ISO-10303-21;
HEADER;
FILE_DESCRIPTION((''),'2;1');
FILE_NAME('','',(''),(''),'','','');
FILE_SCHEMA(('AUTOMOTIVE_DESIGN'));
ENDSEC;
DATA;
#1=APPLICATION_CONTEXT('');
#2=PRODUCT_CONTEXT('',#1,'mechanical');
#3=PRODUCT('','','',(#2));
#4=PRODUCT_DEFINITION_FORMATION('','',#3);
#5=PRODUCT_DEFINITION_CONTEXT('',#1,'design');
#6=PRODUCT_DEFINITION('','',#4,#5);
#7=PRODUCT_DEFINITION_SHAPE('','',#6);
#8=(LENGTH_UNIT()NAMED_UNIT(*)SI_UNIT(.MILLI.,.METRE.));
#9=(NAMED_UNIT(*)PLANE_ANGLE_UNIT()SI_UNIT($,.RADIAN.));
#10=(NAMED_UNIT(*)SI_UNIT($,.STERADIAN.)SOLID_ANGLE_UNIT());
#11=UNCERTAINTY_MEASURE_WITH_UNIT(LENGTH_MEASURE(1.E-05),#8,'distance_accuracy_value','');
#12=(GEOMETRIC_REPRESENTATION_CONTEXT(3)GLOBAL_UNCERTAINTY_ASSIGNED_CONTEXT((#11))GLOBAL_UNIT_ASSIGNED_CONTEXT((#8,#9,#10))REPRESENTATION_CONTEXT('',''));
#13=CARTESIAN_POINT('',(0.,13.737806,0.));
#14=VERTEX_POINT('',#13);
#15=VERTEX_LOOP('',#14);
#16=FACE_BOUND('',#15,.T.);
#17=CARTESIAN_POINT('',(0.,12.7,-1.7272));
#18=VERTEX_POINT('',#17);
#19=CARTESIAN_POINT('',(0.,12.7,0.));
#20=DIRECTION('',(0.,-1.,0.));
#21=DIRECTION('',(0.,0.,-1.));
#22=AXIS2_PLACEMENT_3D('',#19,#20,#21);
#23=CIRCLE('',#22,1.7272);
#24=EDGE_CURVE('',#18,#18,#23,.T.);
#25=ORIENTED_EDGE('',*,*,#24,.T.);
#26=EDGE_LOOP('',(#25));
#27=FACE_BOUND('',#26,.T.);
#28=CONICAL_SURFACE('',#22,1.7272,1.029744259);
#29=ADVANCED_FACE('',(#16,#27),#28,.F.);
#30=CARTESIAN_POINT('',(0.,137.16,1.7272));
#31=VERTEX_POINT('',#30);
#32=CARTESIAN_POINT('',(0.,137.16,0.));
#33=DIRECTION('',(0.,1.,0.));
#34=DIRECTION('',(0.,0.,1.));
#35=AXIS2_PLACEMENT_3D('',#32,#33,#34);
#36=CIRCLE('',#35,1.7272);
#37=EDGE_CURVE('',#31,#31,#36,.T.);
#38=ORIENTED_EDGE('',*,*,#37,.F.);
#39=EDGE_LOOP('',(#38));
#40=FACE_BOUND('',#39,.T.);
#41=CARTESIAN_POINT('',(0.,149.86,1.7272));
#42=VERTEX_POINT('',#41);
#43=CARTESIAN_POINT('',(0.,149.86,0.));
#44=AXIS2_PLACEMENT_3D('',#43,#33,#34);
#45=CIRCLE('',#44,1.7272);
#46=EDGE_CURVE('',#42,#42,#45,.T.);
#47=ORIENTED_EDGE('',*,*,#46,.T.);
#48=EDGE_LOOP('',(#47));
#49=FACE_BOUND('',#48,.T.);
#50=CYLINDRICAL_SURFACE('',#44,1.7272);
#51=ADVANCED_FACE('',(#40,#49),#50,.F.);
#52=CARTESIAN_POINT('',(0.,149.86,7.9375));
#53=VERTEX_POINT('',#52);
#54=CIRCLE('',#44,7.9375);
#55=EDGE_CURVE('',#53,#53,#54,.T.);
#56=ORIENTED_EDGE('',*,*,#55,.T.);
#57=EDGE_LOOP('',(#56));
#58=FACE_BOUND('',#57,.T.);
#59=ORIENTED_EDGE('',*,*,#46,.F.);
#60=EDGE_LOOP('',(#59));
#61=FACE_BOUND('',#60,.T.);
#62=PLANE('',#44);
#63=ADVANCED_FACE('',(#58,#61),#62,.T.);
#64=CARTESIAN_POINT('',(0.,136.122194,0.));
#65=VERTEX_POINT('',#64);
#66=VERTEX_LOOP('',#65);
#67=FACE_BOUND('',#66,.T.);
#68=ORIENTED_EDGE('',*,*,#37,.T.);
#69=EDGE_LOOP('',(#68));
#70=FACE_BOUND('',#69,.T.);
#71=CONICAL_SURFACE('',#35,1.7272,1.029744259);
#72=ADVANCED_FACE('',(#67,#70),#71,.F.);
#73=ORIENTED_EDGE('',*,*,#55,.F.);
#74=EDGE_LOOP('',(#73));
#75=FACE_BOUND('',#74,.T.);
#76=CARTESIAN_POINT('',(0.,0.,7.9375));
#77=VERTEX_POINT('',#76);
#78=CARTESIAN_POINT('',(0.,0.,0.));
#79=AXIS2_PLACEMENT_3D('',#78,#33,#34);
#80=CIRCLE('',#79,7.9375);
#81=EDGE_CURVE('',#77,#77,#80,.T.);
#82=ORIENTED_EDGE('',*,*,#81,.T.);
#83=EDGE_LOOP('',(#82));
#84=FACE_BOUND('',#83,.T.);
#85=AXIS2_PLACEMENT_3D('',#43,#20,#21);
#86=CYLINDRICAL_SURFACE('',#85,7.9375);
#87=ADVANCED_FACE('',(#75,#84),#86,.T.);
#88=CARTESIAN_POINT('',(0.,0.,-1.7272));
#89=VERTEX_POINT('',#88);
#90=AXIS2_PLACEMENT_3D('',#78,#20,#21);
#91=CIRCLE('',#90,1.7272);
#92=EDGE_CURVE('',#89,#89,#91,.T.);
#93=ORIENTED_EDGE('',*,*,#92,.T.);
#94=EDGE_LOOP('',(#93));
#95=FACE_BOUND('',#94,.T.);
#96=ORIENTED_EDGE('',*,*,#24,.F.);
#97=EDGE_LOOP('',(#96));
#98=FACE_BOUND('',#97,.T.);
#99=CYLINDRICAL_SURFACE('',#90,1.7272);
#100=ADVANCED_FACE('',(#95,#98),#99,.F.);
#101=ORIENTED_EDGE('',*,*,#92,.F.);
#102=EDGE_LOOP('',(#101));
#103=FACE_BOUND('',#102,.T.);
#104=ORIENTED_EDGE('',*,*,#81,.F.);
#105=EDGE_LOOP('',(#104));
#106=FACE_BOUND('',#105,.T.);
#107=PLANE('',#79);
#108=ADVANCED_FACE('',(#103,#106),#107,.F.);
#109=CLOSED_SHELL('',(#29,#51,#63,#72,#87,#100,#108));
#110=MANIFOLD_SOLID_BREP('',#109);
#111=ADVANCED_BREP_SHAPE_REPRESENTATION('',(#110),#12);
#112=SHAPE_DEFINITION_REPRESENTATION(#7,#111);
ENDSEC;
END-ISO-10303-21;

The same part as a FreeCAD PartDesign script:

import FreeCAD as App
import Part
import Sketcher
Q = App.Units.Quantity

doc = App.newDocument("Part")
params = doc.addObject("Spreadsheet::Sheet", "Params")
for row, (alias, value) in enumerate([
    ("sketch1_diameter", "0.625 in"),
    ("pad1_length", "5.9 in"),
    ("sketch2_diameter", "0.136 in"),
    ("hole_diameter", "0.136 in"),
    ("hole_depth", "0.5 in"),
    ("sketch3_diameter", "0.136 in"),
    ("hole2_diameter", "0.136 in"),
    ("hole2_depth", "0.5 in"),
], start=1):
    params.set(f"A{row}", alias)
    params.set(f"B{row}", "=" + value)
    params.setAlias(f"B{row}", alias)

body = doc.addObject("PartDesign::Body", "Body")

sketch1 = body.newObject("Sketcher::SketchObject", "Sketch")
sketch1.AttachmentSupport = (doc.getObject("XZ_Plane"), [""])
sketch1.MapMode = "FlatFace"
sketch1.addGeometry(Part.Circle(App.Vector(0, 0, 0), App.Vector(0, 0, 1), 8), False)
sketch1.addConstraint(Sketcher.Constraint("Coincident", 0, 3, -1, 1))
sketch1.addConstraint(Sketcher.Constraint("Diameter", 0, Q("0.625 in")))
sketch1.setExpression("Constraints[1]", "Params.sketch1_diameter")
pad1 = body.newObject("PartDesign::Pad", "Pad")
pad1.Profile = sketch1
pad1.setExpression("Length", "Params.pad1_length")
pad1.Reversed = True

sketch2 = body.newObject("Sketcher::SketchObject", "Sketch001")
sketch2.AttachmentSupport = (doc.getObject("XZ_Plane"), [""])
sketch2.MapMode = "FlatFace"
sketch2.addGeometry(Part.Circle(App.Vector(0, 0, 0), App.Vector(0, 0, 1), 1.7), False)
sketch2.addConstraint(Sketcher.Constraint("Coincident", 0, 3, -1, 1))
sketch2.addConstraint(Sketcher.Constraint("Diameter", 0, Q("0.136 in")))
sketch2.setExpression("Constraints[1]", "Params.sketch2_diameter")
doc.recompute()
hole = body.newObject("PartDesign::Hole", "Hole")
hole.Profile = sketch2
hole.ThreadType = "None"
hole.setExpression("Diameter", "Params.hole_diameter")
hole.DepthType = "Dimension"
hole.setExpression("Depth", "Params.hole_depth")
hole.DrillPoint = "Angled"
hole.DrillPointAngle = 118

sketch3 = body.newObject("Sketcher::SketchObject", "Sketch002")
sketch3.AttachmentSupport = (doc.getObject("XZ_Plane"), [""])
sketch3.MapMode = "FlatFace"
sketch3.AttachmentOffset = App.Placement(App.Vector(0, 0, -5.9 * 25.4), App.Rotation())
sketch3.addGeometry(Part.Circle(App.Vector(0, 0, 0), App.Vector(0, 0, 1), 1.7), False)
sketch3.addConstraint(Sketcher.Constraint("Coincident", 0, 3, -1, 1))
sketch3.addConstraint(Sketcher.Constraint("Diameter", 0, Q("0.136 in")))
sketch3.setExpression("Constraints[1]", "Params.sketch3_diameter")
doc.recompute()
hole2 = body.newObject("PartDesign::Hole", "Hole001")
hole2.Profile = sketch3
hole2.ThreadType = "None"
hole2.setExpression("Diameter", "Params.hole2_diameter")
hole2.DepthType = "Dimension"
hole2.setExpression("Depth", "Params.hole2_depth")
hole2.DrillPoint = "Angled"
hole2.DrillPointAngle = 118
hole2.Reversed = True

doc.recompute()
